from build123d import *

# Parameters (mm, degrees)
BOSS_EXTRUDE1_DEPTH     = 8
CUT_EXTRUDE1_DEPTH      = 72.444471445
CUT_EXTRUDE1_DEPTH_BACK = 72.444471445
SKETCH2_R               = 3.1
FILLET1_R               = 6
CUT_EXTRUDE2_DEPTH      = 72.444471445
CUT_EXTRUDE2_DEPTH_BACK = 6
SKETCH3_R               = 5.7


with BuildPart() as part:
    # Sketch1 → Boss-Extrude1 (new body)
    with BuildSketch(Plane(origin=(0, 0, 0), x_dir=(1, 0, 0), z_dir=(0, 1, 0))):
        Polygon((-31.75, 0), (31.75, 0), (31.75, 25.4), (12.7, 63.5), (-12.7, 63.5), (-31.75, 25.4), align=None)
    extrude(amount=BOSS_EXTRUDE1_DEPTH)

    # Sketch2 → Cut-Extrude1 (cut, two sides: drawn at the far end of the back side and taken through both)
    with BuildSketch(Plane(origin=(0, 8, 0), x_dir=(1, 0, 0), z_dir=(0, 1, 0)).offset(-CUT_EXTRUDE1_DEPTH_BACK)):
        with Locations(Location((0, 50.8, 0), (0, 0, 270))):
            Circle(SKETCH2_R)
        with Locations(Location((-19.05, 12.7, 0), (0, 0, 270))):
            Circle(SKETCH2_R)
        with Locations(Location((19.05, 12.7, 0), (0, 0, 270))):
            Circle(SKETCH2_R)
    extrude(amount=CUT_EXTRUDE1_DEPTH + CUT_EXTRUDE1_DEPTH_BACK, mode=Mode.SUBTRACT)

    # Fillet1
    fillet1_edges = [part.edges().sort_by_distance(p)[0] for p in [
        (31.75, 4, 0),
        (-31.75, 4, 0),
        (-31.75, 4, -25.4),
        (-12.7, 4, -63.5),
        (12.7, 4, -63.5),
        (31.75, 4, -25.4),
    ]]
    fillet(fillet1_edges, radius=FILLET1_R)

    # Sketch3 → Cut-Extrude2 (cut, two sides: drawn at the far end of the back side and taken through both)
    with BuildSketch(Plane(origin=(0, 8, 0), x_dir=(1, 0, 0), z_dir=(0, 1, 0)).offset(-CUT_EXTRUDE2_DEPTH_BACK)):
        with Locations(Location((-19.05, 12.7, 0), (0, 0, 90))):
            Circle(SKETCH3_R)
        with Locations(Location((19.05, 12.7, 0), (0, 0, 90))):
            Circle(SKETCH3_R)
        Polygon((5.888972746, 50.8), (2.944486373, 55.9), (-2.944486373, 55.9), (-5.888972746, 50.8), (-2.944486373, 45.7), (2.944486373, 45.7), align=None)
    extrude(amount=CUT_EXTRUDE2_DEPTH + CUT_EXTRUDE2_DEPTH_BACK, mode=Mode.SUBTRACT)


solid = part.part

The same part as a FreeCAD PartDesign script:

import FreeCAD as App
import Part
import Sketcher

V = App.Vector
Q = App.Units.Quantity


def edges_at(feature, points):
    """Names of the edges that pass closest to the given points."""
    edges = feature.Shape.Edges
    near = lambda p: min(range(len(edges)), key=lambda i: edges[i].distToShape(Part.Vertex(*p))[0])
    return sorted({f"Edge{near(p) + 1}" for p in points})


def add_polygon(sketch, points):
    """Adds a closed chain of lines whose ends are joined by coincident constraints."""
    first, n = sketch.GeometryCount, len(points)
    for a, b in zip(points, points[1:] + points[:1]):
        sketch.addGeometry(Part.LineSegment(App.Vector(*a, 0), App.Vector(*b, 0)), False)
    for i in range(n):
        sketch.addConstraint(Sketcher.Constraint("Coincident", first + i, 2, first + (i + 1) % n, 1))

doc = App.newDocument("Part")
body = doc.addObject("PartDesign::Body", "Body")

sketch1 = doc.addObject("Sketcher::SketchObject", "Sketch")
body.addObject(sketch1)
sketch1.AttachmentSupport = (doc.XZ_Plane, [""])
sketch1.MapMode = "FlatFace"
add_polygon(sketch1, [(-32, 0), (32, 0), (32, -25), (13, -64), (-13, -64), (-32, -25)])
sketch1.addConstraint(Sketcher.Constraint("Horizontal", 0))
sketch1.addConstraint(Sketcher.Constraint("Vertical", 1))
sketch1.addConstraint(Sketcher.Constraint("Horizontal", 3))
sketch1.addConstraint(Sketcher.Constraint("Vertical", 5))
sketch1.addConstraint(Sketcher.Constraint("Symmetric", 0, 2, 5, 2, -1, 1))
sketch1.addConstraint(Sketcher.Constraint("Horizontal", 1, 2, 4, 2))
sketch1.addConstraint(Sketcher.Constraint("Equal", 3, 1))
sketch1.addConstraint(Sketcher.Constraint("Equal", 2, 4))
sketch1.addConstraint(Sketcher.Constraint("DistanceX", 0, 1, 0, 2, Q("63.5 mm")))
sketch1.addConstraint(Sketcher.Constraint("DistanceX", 3, 2, 3, 1, Q("25.4 mm")))
sketch1.addConstraint(Sketcher.Constraint("DistanceY", 2, 2, -1, 1, Q("63.5 mm")))
pad1 = doc.addObject("PartDesign::Pad", "Pad")
body.addObject(pad1)
pad1.Profile = sketch1
pad1.Length = 8
pad1.Reversed = True

sketch2 = doc.addObject("Sketcher::SketchObject", "Sketch001")
body.addObject(sketch2)
sketch2.AttachmentSupport = (doc.XZ_Plane, [""])
sketch2.MapMode = "FlatFace"
sketch2.AttachmentOffset = App.Placement(V(0, 0, -8), App.Rotation())
sketch2.addGeometry(Part.Circle(V(0, -50.8, 0), V(0, 0, 1), 3.1), False)
sketch2.addGeometry(Part.Circle(V(-19.1, -12.7, 0), V(0, 0, 1), 3.1), False)
sketch2.addGeometry(Part.Circle(V(19.1, -12.7, 0), V(0, 0, 1), 3.1), False)
sketch2.addConstraint(Sketcher.Constraint("Equal", 0, 1))
sketch2.addConstraint(Sketcher.Constraint("Equal", 1, 2))
sketch2.addConstraint(Sketcher.Constraint("Symmetric", 1, 3, 2, 3, -2))
sketch2.addConstraint(Sketcher.Constraint("PointOnObject", 0, 3, -2))
sketch2.addConstraint(Sketcher.Constraint("Diameter", 0, Q("6.2 mm")))
sketch2.addConstraint(Sketcher.Constraint("DistanceY", 0, 3, -1, 1, Q("50.8 mm")))
sketch2.addConstraint(Sketcher.Constraint("DistanceY", 1, 3, -1, 1, Q("12.7 mm")))
sketch2.addConstraint(Sketcher.Constraint("DistanceX", 1, 3, 2, 3, Q("38.1 mm")))
pocket1 = doc.addObject("PartDesign::Pocket", "Pocket")
body.addObject(pocket1)
pocket1.Profile = sketch2
pocket1.Type = "ThroughAll"
pocket1.Midplane = True
doc.recompute()

fillet = doc.addObject("PartDesign::Fillet", "Fillet")
body.addObject(fillet)
fillet.Base = (pocket1, edges_at(pocket1, [
    (31.75, 4, 0),
    (-31.75, 4, 0),
    (-31.75, 4, -25.4),
    (-12.7, 4, -63.5),
    (12.7, 4, -63.5),
    (31.75, 4, -25.4),
]))
fillet.Radius = 6

sketch3 = doc.addObject("Sketcher::SketchObject", "Sketch002")
body.addObject(sketch3)
sketch3.AttachmentSupport = (doc.XZ_Plane, [""])
sketch3.MapMode = "FlatFace"
sketch3.AttachmentOffset = App.Placement(V(0, 0, -8), App.Rotation())
sketch3.addGeometry(Part.Circle(V(-19, -13, 0), V(0, 0, 1), 6), False)
sketch3.addGeometry(Part.Circle(V(19, -13, 0), V(0, 0, 1), 6), False)
add_polygon(sketch3, [(6, -51), (3, -56), (-3, -56), (-6, -51), (-3, -46), (3, -46)])
sketch3.addConstraint(Sketcher.Constraint("Horizontal", 3))
sketch3.addConstraint(Sketcher.Constraint("Horizontal", 6))
sketch3.addConstraint(Sketcher.Constraint("Equal", 0, 1))
sketch3.addConstraint(Sketcher.Constraint("Symmetric", 0, 3, 1, 3, -2))
sketch3.addConstraint(Sketcher.Constraint("Symmetric", 4, 2, 7, 2, -2))
sketch3.addConstraint(Sketcher.Constraint("Parallel", 2, 5))
sketch3.addConstraint(Sketcher.Constraint("Parallel", 4, 7))
sketch3.addConstraint(Sketcher.Constraint("Vertical", 3, 2, 5, 2))
sketch3.addConstraint(Sketcher.Constraint("Vertical", 2, 2, 6, 2))
sketch3.addConstraint(Sketcher.Constraint("Diameter", 0, Q("11.4 mm")))
sketch3.addConstraint(Sketcher.Constraint("Angle", 2, Q("-120 deg")))
sketch3.addConstraint(Sketcher.Constraint("DistanceY", 5, 2, 0, 3, Q("33 mm")))
sketch3.addConstraint(Sketcher.Constraint("DistanceY", 0, 3, -1, 1, Q("12.7 mm")))
sketch3.addConstraint(Sketcher.Constraint("DistanceY", 2, 2, -1, 1, Q("55.9 mm")))
sketch3.addConstraint(Sketcher.Constraint("DistanceX", 0, 3, 1, 3, Q("38.1 mm")))
sketch3.addConstraint(Sketcher.Constraint("DistanceX", 3, 2, 3, 1, Q("5.888973 mm")))
pocket2 = doc.addObject("PartDesign::Pocket", "Pocket001")
body.addObject(pocket2)
pocket2.Profile = sketch3
pocket2.Type = "TwoLengths"
pocket2.Length = 72.444471
pocket2.Length2 = 6

doc.recompute()
